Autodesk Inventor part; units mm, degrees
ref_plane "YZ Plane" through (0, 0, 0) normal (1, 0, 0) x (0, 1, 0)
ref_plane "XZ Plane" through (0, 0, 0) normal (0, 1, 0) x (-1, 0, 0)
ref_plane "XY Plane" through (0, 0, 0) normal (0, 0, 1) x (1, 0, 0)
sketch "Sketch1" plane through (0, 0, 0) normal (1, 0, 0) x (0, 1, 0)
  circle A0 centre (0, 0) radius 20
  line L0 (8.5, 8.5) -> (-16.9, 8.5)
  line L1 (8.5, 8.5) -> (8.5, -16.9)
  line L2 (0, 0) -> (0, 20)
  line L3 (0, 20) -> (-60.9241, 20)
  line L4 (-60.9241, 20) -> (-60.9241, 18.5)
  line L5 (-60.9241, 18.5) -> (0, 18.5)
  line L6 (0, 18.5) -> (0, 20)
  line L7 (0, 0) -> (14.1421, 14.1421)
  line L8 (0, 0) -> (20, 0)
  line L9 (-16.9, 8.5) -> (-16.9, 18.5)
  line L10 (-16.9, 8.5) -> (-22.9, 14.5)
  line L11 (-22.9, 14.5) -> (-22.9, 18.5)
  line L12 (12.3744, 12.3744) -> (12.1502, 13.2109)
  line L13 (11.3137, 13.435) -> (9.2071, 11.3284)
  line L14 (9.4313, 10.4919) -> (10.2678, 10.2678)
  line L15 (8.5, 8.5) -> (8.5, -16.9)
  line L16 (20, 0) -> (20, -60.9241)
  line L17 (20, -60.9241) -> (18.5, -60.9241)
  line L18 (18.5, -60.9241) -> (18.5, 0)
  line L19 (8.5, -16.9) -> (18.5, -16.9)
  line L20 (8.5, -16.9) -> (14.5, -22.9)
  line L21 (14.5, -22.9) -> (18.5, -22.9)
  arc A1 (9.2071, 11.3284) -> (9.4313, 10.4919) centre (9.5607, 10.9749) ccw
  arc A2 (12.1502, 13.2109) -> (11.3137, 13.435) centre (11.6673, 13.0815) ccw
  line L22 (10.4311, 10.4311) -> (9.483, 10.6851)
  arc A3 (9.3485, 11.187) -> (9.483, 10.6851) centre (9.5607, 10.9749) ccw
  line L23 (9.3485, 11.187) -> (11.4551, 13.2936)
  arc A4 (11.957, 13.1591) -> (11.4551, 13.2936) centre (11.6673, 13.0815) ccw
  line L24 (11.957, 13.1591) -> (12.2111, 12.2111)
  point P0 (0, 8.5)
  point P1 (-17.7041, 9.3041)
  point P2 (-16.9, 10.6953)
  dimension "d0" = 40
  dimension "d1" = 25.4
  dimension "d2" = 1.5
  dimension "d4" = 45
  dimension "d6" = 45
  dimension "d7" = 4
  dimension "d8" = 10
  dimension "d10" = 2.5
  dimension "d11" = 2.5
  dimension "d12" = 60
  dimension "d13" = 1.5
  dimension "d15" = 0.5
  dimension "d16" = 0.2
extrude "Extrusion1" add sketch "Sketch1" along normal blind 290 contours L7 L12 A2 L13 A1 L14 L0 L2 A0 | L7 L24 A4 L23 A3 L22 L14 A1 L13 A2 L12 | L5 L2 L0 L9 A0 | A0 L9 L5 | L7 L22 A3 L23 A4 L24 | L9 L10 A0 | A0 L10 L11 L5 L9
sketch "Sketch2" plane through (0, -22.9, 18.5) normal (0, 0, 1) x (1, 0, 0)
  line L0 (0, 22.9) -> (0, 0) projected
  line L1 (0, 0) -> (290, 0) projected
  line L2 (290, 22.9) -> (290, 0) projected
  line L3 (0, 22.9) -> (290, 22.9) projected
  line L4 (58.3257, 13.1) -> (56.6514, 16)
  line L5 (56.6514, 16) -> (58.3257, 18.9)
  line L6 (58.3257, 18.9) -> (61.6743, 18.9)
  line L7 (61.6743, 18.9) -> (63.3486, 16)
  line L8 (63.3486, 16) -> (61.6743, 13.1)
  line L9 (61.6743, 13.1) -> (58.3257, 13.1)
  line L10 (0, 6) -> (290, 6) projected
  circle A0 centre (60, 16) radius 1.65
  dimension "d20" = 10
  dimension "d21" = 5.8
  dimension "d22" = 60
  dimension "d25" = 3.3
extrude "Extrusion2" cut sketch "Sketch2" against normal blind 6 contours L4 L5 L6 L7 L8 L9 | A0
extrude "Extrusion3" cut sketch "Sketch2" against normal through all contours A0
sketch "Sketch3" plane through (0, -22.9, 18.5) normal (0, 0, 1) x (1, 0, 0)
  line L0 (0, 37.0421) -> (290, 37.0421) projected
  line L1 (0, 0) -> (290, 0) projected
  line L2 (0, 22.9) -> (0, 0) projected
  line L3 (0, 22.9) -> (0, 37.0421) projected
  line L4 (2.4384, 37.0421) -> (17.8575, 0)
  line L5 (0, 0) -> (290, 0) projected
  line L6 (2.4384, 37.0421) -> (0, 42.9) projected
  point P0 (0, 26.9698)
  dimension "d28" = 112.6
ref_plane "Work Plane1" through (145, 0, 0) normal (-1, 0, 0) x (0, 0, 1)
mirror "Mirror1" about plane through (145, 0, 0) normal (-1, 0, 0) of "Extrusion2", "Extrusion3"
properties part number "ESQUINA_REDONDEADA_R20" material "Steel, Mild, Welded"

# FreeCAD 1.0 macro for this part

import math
import FreeCAD as App
import Part
import Sketcher
from FreeCAD import Vector
Q = App.Units.Quantity


def add_polygon(sketch, points):
    """Adds a closed chain of lines whose ends are joined by coincident constraints."""
    first, n = sketch.GeometryCount, len(points)
    for a, b in zip(points, points[1:] + points[:1]):
        sketch.addGeometry(Part.LineSegment(App.Vector(*a, 0), App.Vector(*b, 0)), False)
    for i in range(n):
        sketch.addConstraint(Sketcher.Constraint("Coincident", first + i, 2, first + (i + 1) % n, 1))

doc = App.newDocument("Part")
body = doc.addObject("PartDesign::Body", "Body")

sketch1 = body.newObject("Sketcher::SketchObject", "Sketch")
sketch1.AttachmentSupport = (doc.getObject("YZ_Plane"), [""])
sketch1.MapMode = "FlatFace"
sketch1.addGeometry([
    Part.ArcOfCircle(Part.Circle(Vector(0, 0, 0), Vector(0, 0, 1), 20), math.radians(45), math.radians(90)),
    Part.LineSegment(Vector(0, 20, 0), Vector(0, 18.5, 0)),
    Part.LineSegment(Vector(0, 18.5, 0), Vector(-22.9, 18.5, 0)),
    Part.LineSegment(Vector(-22.9, 18.5, 0), Vector(-22.9, 14.5, 0)),
    Part.LineSegment(Vector(-22.9, 14.5, 0), Vector(-16.9, 8.5, 0)),
    Part.LineSegment(Vector(-16.9, 8.5, 0), Vector(8.5, 8.5, 0)),
    Part.LineSegment(Vector(8.5, 8.5, 0), Vector(14.1, 14.1, 0)),
], False)
sketch1.addConstraint([
    Sketcher.Constraint("Coincident", 0, 2, 1, 1),
    Sketcher.Constraint("Coincident", 1, 2, 2, 1),
    Sketcher.Constraint("Coincident", 2, 2, 3, 1),
    Sketcher.Constraint("Coincident", 3, 2, 4, 1),
    Sketcher.Constraint("Coincident", 4, 2, 5, 1),
    Sketcher.Constraint("Coincident", 5, 2, 6, 1),
    Sketcher.Constraint("Coincident", 6, 2, 0, 1),
    Sketcher.Constraint("Vertical", 1),
    Sketcher.Constraint("Horizontal", 2),
    Sketcher.Constraint("Vertical", 3),
    Sketcher.Constraint("Horizontal", 5),
    Sketcher.Constraint("Coincident", 0, 3, -1, 1),
    Sketcher.Constraint("PointOnObject", 0, 2, -2),
    Sketcher.Constraint("Perpendicular", 4, 6),
    Sketcher.Constraint("Radius", 0, Q("20 mm")),
    Sketcher.Constraint("DistanceY", 3, 2, 3, 1, Q("4 mm")),
    Sketcher.Constraint("Angle", 4, Q("-45 deg")),
    Sketcher.Constraint("DistanceX", 5, 1, 5, 2, Q("25.4 mm")),
    Sketcher.Constraint("DistanceY", 1, 2, 1, 1, Q("1.5 mm")),
    Sketcher.Constraint("DistanceY", 4, 2, 2, 2, Q("10 mm")),
    Sketcher.Constraint("DistanceX", 2, 2, 2, 1, Q("22.9 mm")),
])
pad1 = body.newObject("PartDesign::Pad", "Pad")
pad1.Profile = sketch1
pad1.Length = 290

sketch2 = body.newObject("Sketcher::SketchObject", "Sketch001")
sketch2.AttachmentSupport = (doc.getObject("XY_Plane"), [""])
sketch2.MapMode = "FlatFace"
sketch2.AttachmentOffset = App.Placement(Vector(0, 0, 18.5), App.Rotation())
add_polygon(sketch2, [(56.7, -6.9), (58.3, -9.8), (61.7, -9.8), (63.3, -6.9), (61.7, -4), (58.3, -4)])
sketch2.addConstraint([
    Sketcher.Constraint("Horizontal", 1),
    Sketcher.Constraint("Horizontal", 4),
    Sketcher.Constraint("Parallel", 0, 3),
    Sketcher.Constraint("Parallel", 2, 5),
    Sketcher.Constraint("Horizontal", 2, 2, 5, 2),
    Sketcher.Constraint("Vertical", 1, 2, 3, 2),
    Sketcher.Constraint("Vertical", 0, 2, 4, 2),
    Sketcher.Constraint("Angle", 0, Q("-60.0002 deg")),
    Sketcher.Constraint("DistanceY", 1, 2, 3, 2, Q("5.8 mm")),
    Sketcher.Constraint("DistanceY", 3, 2, -1, 1, Q("4 mm")),
    Sketcher.Constraint("DistanceX", 1, 1, 1, 2, Q("3.3486 mm")),
    Sketcher.Constraint("DistanceX", -1, 1, 0, 2, Q("58.3257 mm")),
])
pocket1 = body.newObject("PartDesign::Pocket", "Pocket")
pocket1.Profile = sketch2
pocket1.Length = 6

sketch3 = body.newObject("Sketcher::SketchObject", "Sketch002")
sketch3.AttachmentSupport = (doc.getObject("XY_Plane"), [""])
sketch3.MapMode = "FlatFace"
sketch3.AttachmentOffset = App.Placement(Vector(0, 0, 18.5), App.Rotation())
sketch3.addGeometry(Part.Circle(Vector(60, -6.9, 0), Vector(0, 0, 1), 1.6), False)
sketch3.addConstraint([
    Sketcher.Constraint("Diameter", 0, Q("3.3 mm")),
    Sketcher.Constraint("DistanceX", -1, 1, 0, 3, Q("60 mm")),
    Sketcher.Constraint("DistanceY", 0, 3, -1, 1, Q("6.9 mm")),
])
pocket2 = body.newObject("PartDesign::Pocket", "Pocket001")
pocket2.Profile = sketch3
pocket2.Type = "ThroughAll"
doc.recompute()

datumplane = body.newObject("PartDesign::Plane", "DatumPlane")
datumplane.AttachmentSupport = (doc.getObject("YZ_Plane"), [""])
datumplane.MapMode = "FlatFace"
datumplane.AttachmentOffset = App.Placement(Vector(0, 0, 145), App.Rotation())
mirrored = body.newObject("PartDesign::Mirrored", "Mirrored")
mirrored.Originals = [pocket1, pocket2]
mirrored.MirrorPlane = (datumplane, [""])
body.Tip = mirrored

doc.recompute()
